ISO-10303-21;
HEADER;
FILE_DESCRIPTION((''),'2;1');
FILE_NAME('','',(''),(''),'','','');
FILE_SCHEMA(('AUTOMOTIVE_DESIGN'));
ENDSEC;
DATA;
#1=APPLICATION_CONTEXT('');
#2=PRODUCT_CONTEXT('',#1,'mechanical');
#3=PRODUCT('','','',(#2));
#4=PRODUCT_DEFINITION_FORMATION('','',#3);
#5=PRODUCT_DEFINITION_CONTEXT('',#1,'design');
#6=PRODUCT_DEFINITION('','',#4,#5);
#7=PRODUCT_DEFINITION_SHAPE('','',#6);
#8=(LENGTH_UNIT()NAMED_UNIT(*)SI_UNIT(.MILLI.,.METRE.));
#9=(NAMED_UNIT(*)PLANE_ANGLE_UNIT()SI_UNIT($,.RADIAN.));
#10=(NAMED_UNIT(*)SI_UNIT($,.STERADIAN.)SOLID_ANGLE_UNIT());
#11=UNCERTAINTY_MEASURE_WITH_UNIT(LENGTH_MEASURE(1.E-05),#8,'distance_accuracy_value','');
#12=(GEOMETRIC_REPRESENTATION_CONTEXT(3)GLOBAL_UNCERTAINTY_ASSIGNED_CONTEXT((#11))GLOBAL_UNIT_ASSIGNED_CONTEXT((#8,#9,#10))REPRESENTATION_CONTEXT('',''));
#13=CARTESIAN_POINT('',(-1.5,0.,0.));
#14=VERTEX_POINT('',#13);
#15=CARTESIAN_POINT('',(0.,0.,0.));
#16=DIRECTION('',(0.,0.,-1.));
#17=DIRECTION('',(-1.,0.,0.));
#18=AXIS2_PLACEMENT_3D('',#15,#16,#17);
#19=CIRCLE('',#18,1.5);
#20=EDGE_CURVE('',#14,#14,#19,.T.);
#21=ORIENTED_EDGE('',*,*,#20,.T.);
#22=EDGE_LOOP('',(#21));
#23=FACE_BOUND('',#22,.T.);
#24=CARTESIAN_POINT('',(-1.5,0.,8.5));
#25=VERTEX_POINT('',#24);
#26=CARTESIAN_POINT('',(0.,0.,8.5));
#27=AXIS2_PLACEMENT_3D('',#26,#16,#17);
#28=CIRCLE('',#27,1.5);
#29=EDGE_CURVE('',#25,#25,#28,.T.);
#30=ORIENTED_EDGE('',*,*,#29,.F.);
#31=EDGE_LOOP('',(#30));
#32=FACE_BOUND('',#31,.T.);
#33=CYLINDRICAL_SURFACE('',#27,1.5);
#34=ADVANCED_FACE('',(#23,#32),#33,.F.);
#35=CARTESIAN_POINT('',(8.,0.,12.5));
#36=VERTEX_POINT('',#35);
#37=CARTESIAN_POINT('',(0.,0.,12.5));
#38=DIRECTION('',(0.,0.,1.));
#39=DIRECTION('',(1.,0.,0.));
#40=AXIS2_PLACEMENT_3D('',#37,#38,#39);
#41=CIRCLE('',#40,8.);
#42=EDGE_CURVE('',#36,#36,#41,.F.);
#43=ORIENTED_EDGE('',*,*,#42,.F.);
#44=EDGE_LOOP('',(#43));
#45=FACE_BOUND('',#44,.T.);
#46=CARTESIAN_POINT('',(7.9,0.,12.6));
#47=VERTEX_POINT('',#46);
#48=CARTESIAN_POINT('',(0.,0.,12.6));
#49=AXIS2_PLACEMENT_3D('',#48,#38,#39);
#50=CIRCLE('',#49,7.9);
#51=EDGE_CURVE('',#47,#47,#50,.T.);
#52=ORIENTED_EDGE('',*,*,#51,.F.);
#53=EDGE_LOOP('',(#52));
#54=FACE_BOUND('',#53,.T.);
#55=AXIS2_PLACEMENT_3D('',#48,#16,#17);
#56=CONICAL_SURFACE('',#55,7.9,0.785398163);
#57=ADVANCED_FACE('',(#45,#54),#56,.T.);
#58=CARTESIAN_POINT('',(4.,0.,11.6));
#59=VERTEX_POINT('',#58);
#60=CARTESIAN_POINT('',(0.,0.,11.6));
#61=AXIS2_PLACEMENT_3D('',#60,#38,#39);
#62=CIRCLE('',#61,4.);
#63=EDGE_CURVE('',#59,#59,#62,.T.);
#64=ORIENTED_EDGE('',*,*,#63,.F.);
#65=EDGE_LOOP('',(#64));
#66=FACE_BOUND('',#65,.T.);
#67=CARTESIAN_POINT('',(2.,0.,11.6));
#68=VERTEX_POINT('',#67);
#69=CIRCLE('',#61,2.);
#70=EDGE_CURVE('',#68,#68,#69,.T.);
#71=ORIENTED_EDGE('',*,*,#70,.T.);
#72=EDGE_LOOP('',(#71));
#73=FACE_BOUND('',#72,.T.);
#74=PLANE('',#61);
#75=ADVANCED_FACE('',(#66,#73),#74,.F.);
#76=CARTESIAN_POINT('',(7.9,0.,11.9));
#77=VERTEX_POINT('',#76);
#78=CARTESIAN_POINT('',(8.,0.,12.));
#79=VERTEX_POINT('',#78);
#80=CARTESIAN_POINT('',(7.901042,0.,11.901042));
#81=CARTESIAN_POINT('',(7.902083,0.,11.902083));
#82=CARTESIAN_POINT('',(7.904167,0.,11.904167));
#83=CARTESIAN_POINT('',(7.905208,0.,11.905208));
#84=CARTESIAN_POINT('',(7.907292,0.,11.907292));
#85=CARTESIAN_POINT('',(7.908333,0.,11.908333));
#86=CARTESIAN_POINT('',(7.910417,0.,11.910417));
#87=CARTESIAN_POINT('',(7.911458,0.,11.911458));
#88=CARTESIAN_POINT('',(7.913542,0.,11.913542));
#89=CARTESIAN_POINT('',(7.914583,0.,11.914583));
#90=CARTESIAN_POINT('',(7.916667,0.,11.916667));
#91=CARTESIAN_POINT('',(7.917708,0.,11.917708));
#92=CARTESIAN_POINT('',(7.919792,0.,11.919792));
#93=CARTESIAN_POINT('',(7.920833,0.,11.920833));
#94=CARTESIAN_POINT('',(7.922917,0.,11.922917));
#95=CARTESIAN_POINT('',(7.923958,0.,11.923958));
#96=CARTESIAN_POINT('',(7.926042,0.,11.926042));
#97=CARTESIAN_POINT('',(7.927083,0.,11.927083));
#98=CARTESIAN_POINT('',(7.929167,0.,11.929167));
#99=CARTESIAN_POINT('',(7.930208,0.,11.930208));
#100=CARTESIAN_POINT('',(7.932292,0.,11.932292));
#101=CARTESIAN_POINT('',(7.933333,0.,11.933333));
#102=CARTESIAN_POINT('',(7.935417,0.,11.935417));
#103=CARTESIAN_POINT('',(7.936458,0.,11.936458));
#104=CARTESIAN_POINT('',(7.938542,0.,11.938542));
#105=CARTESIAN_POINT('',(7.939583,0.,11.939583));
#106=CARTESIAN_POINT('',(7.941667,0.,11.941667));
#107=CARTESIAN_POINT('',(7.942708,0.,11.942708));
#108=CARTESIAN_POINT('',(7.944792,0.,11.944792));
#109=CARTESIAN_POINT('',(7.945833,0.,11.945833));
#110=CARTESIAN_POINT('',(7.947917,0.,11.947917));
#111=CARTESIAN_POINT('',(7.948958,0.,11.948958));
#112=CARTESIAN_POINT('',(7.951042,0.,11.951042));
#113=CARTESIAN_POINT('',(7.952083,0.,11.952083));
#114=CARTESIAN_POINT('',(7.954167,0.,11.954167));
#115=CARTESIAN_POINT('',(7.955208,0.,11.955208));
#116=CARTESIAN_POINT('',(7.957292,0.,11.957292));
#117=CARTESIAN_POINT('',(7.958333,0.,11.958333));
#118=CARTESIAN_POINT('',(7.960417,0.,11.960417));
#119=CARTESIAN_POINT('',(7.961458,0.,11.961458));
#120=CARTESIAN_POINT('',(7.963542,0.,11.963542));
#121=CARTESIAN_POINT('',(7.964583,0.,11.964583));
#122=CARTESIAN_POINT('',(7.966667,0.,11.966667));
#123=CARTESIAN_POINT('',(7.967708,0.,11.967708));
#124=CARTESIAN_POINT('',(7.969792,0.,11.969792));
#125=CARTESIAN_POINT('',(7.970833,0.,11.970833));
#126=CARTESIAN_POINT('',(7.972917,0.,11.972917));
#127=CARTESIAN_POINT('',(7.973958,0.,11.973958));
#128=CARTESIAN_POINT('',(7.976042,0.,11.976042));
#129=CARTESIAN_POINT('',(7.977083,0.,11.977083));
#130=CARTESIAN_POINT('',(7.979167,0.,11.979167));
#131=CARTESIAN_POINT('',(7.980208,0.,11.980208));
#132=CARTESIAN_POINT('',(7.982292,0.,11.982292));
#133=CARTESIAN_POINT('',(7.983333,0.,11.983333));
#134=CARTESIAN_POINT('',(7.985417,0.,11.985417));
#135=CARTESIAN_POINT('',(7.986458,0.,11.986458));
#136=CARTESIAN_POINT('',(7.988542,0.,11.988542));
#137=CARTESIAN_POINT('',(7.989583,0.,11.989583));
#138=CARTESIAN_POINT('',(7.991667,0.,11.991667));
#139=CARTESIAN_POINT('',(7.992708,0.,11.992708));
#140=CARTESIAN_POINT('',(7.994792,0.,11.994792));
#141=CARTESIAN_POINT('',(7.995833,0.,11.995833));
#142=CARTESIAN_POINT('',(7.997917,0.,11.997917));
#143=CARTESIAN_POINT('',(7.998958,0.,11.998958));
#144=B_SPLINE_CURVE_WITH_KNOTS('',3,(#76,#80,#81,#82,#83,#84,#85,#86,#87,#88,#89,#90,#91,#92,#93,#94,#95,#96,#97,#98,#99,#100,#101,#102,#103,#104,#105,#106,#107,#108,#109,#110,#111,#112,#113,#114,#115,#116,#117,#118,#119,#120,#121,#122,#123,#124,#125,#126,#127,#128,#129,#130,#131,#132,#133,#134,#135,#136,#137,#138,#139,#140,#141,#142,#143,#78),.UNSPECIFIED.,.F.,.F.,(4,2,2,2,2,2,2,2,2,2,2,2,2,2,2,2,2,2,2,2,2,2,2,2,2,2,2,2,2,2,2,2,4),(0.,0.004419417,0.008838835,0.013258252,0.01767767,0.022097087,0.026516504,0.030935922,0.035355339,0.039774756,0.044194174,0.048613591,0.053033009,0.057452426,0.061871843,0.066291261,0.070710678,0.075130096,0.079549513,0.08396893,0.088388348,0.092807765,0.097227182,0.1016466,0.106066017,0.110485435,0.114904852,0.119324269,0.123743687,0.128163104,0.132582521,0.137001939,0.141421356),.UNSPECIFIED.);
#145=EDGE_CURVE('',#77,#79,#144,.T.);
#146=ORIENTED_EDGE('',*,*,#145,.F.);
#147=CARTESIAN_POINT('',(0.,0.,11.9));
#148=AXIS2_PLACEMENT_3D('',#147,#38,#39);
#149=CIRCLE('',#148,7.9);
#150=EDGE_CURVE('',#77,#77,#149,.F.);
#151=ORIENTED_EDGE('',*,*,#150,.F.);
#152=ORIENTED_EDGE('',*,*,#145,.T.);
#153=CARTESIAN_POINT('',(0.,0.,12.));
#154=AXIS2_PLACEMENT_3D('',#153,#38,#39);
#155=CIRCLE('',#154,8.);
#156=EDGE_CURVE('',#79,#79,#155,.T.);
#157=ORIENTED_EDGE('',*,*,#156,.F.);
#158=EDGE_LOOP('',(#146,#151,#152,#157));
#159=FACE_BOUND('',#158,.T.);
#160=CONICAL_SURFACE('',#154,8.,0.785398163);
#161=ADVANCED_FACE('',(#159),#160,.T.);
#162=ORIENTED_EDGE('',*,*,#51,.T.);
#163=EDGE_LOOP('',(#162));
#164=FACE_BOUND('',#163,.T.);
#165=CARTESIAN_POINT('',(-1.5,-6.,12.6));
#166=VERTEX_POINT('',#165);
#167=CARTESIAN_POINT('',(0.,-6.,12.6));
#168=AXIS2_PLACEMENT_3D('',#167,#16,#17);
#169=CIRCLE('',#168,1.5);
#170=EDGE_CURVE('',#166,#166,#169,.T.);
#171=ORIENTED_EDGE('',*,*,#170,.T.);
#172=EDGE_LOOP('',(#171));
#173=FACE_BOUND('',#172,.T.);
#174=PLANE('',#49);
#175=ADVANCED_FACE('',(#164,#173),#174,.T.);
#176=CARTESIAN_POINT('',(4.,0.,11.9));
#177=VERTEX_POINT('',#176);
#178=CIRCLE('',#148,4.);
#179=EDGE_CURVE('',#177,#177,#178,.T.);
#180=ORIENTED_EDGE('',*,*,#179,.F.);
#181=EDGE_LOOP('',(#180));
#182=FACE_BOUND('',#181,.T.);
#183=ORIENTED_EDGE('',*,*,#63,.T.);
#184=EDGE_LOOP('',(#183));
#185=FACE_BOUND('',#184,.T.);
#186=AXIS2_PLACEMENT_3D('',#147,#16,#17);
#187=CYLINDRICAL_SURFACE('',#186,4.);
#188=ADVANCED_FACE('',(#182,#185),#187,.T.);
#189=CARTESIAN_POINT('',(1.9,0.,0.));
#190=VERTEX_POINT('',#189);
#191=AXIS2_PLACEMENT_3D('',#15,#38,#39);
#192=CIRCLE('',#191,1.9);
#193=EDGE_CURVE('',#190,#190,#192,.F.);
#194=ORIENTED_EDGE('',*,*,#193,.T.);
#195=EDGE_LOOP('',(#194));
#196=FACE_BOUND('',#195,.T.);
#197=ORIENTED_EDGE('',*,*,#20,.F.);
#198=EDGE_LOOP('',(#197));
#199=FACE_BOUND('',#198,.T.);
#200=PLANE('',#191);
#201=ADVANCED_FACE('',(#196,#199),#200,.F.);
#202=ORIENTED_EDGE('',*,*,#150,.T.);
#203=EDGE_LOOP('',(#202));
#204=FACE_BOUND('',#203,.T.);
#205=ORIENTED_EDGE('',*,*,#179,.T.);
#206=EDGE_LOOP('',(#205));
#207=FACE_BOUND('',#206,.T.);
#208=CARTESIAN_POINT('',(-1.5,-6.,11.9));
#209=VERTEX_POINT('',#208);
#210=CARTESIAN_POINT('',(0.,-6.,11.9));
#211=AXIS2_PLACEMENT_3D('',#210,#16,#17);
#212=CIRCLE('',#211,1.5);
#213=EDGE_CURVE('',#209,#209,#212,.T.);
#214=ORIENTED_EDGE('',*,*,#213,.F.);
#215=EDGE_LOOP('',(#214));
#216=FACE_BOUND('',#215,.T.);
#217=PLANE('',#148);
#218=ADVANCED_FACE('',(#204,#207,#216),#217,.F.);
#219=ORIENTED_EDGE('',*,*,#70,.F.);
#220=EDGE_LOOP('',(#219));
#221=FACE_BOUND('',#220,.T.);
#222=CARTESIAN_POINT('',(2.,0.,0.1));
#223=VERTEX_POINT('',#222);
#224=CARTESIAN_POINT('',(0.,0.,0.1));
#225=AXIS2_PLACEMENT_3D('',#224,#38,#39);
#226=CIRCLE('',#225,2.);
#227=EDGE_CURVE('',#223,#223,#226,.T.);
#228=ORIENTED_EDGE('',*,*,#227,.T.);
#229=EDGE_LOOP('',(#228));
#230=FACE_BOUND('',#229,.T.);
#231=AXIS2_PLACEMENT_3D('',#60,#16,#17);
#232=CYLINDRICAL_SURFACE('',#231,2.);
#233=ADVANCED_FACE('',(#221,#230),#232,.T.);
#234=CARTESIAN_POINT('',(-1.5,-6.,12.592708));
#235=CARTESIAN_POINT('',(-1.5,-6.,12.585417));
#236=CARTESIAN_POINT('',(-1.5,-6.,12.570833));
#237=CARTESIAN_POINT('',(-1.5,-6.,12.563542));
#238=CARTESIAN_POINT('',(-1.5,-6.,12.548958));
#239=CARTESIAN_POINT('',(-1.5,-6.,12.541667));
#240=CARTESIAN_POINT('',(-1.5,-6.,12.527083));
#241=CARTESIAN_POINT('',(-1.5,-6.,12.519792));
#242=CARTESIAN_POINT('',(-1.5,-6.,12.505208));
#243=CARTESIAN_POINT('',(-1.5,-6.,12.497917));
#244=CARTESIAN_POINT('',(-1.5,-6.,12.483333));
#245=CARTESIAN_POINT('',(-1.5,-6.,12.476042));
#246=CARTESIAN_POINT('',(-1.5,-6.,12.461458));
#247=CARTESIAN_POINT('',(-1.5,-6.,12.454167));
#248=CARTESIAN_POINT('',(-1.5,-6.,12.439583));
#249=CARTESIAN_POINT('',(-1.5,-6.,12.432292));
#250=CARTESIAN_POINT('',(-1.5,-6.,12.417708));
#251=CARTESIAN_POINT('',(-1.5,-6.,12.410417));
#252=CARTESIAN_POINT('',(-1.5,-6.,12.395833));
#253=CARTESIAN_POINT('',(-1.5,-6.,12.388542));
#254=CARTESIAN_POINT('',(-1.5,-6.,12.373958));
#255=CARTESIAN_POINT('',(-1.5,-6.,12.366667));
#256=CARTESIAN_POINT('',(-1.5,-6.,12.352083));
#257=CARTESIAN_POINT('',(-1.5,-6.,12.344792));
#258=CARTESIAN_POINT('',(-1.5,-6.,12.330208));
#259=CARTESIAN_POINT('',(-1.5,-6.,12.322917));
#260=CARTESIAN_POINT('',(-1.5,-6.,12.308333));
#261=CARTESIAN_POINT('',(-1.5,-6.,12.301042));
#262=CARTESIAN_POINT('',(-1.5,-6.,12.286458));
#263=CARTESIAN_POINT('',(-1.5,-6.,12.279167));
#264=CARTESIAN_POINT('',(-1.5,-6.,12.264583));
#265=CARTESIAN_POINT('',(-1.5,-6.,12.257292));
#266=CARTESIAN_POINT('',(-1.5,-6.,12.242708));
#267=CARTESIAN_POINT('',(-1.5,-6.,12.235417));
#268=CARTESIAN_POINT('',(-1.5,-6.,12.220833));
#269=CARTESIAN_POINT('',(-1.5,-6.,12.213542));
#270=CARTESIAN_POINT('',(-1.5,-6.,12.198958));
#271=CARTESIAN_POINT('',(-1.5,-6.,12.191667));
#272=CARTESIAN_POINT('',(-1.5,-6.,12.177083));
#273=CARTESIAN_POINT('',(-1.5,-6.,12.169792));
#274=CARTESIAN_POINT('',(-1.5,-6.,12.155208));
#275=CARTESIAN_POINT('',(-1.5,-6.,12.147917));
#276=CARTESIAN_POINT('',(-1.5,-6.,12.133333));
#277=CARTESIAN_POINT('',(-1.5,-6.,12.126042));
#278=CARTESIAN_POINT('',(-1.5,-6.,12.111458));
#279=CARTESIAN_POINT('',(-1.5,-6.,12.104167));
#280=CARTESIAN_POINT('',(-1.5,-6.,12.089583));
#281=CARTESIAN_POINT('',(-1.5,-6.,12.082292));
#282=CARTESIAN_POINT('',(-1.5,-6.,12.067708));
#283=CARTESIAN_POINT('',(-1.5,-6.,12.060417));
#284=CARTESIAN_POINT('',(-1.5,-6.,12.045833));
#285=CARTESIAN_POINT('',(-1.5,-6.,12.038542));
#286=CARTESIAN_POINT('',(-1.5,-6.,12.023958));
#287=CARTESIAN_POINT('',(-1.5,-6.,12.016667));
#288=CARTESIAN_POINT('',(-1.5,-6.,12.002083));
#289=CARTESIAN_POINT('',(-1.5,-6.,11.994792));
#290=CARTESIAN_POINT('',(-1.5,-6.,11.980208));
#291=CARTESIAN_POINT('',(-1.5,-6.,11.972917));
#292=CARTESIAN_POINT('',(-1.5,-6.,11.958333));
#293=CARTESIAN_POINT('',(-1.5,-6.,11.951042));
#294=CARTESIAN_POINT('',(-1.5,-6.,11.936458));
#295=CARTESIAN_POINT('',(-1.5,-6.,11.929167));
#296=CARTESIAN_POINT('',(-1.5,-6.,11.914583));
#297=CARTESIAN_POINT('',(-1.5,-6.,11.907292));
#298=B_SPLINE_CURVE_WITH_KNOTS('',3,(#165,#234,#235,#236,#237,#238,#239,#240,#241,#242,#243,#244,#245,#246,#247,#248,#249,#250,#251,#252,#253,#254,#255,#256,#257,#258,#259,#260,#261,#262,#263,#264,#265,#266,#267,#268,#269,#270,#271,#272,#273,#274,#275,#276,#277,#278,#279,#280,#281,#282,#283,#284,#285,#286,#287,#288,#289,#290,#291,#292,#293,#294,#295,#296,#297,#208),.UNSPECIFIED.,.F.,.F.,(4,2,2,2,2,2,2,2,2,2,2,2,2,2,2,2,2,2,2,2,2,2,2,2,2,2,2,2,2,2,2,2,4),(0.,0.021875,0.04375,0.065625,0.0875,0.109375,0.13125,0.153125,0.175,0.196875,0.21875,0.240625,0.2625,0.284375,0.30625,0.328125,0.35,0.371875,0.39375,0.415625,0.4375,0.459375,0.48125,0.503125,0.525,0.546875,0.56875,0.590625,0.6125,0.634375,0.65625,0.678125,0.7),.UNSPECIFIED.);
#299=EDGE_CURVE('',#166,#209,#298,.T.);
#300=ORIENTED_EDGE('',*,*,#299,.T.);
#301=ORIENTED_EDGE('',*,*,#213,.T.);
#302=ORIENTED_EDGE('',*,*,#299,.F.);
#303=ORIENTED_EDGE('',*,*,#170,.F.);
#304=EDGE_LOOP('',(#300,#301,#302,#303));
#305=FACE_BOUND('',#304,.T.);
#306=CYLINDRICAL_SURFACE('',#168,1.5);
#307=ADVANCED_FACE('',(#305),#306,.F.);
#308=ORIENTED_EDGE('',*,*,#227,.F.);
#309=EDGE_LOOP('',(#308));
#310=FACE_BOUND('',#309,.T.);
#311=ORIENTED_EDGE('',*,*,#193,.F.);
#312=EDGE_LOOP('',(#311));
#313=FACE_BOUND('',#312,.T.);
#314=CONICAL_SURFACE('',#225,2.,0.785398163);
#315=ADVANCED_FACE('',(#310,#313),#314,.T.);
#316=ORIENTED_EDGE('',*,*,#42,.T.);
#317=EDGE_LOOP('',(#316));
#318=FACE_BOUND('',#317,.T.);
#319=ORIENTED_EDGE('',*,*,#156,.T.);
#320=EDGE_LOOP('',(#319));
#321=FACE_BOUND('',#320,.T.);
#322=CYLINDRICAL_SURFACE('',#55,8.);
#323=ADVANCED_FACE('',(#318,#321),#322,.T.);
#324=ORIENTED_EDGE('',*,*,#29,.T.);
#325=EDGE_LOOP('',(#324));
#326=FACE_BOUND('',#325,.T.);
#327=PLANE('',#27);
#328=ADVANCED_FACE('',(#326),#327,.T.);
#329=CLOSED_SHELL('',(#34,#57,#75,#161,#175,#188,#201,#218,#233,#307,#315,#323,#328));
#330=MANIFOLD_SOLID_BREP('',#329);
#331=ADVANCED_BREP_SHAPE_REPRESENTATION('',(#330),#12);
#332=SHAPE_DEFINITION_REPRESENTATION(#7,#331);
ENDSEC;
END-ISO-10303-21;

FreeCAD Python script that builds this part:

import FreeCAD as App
import Part
import Sketcher


def edges_at(feature, points):
    """Names of the edges that pass closest to the given points."""
    edges = feature.Shape.Edges
    near = lambda p: min(range(len(edges)), key=lambda i: edges[i].distToShape(Part.Vertex(*p))[0])
    return sorted({f"Edge{near(p) + 1}" for p in points})

doc = App.newDocument("Part")
body = doc.addObject("PartDesign::Body", "Body")

# Sketch on XY plane
sketch1 = body.newObject("Sketcher::SketchObject", "Sketch")
sketch1.AttachmentSupport = (doc.getObject("XY_Plane"), [""])
sketch1.MapMode = "FlatFace"
sketch1.addGeometry(Part.Circle(App.Vector(0, 0, 0), App.Vector(0, 0, 1), 2), False)
sketch1.addConstraint([
    Sketcher.Constraint("Coincident", 0, 3, -1, 1),
    Sketcher.Constraint("Diameter", 0, 4.0),
])
pad1 = body.newObject("PartDesign::Pad", "Pad")
pad1.Profile = sketch1
pad1.Length = 11.6

# Sketch on XY plane
sketch2 = body.newObject("Sketcher::SketchObject", "Sketch001")
sketch2.AttachmentSupport = (doc.getObject("XY_Plane"), [""])
sketch2.MapMode = "FlatFace"
sketch2.AttachmentOffset = App.Placement(App.Vector(0, 0, 11.6), App.Rotation())
sketch2.addGeometry(Part.Circle(App.Vector(0, 0, 0), App.Vector(0, 0, 1), 4), False)
sketch2.addConstraint([
    Sketcher.Constraint("Coincident", 0, 3, -1, 1),
    Sketcher.Constraint("Diameter", 0, 8.0),
])
pad2 = body.newObject("PartDesign::Pad", "Pad001")
pad2.Profile = sketch2
pad2.Length = 0.3

# Sketch on XY plane
sketch3 = body.newObject("Sketcher::SketchObject", "Sketch002")
sketch3.AttachmentSupport = (doc.getObject("XY_Plane"), [""])
sketch3.MapMode = "FlatFace"
sketch3.AttachmentOffset = App.Placement(App.Vector(0, 0, 11.9), App.Rotation())
sketch3.addGeometry(Part.Circle(App.Vector(0, 0, 0), App.Vector(0, 0, 1), 8), False)
sketch3.addConstraint([
    Sketcher.Constraint("Coincident", 0, 3, -1, 1),
    Sketcher.Constraint("Diameter", 0, 16.0),
])
pad3 = body.newObject("PartDesign::Pad", "Pad002")
pad3.Profile = sketch3
pad3.Length = 0.7

# Sketch on XY plane
sketch4 = body.newObject("Sketcher::SketchObject", "Sketch003")
sketch4.AttachmentSupport = (doc.getObject("XY_Plane"), [""])
sketch4.MapMode = "FlatFace"
sketch4.addGeometry(Part.Circle(App.Vector(0, 0, 0), App.Vector(0, 0, 1), 1.5), False)
sketch4.addConstraint([
    Sketcher.Constraint("Coincident", 0, 3, -1, 1),
    Sketcher.Constraint("Diameter", 0, 3.0),
])
pocket1 = body.newObject("PartDesign::Pocket", "Pocket")
pocket1.Profile = sketch4
pocket1.Length = 8.5
pocket1.Reversed = True

# Sketch on XY plane
sketch5 = body.newObject("Sketcher::SketchObject", "Sketch004")
sketch5.AttachmentSupport = (doc.getObject("XY_Plane"), [""])
sketch5.MapMode = "FlatFace"
sketch5.AttachmentOffset = App.Placement(App.Vector(0, 0, 11.9), App.Rotation())
sketch5.addGeometry(Part.Circle(App.Vector(0, -6, 0), App.Vector(0, 0, 1), 1.5), False)
sketch5.addConstraint([
    Sketcher.Constraint("PointOnObject", 0, 3, -2),
    Sketcher.Constraint("Diameter", 0, 3.0),
    Sketcher.Constraint("DistanceY", 0, 3, -1, 1, 6.0),
])
pocket2 = body.newObject("PartDesign::Pocket", "Pocket001")
pocket2.Profile = sketch5
pocket2.Type = "ThroughAll"
pocket2.Reversed = True
doc.recompute()

chamfer = body.newObject("PartDesign::Chamfer", "Chamfer")
chamfer.Base = (pocket2, edges_at(pocket2, [(-8, 0, 12.6), (-2, 0, 0), (-8, 0, 11.9)]))
chamfer.Size = 0.1

doc.recompute()
